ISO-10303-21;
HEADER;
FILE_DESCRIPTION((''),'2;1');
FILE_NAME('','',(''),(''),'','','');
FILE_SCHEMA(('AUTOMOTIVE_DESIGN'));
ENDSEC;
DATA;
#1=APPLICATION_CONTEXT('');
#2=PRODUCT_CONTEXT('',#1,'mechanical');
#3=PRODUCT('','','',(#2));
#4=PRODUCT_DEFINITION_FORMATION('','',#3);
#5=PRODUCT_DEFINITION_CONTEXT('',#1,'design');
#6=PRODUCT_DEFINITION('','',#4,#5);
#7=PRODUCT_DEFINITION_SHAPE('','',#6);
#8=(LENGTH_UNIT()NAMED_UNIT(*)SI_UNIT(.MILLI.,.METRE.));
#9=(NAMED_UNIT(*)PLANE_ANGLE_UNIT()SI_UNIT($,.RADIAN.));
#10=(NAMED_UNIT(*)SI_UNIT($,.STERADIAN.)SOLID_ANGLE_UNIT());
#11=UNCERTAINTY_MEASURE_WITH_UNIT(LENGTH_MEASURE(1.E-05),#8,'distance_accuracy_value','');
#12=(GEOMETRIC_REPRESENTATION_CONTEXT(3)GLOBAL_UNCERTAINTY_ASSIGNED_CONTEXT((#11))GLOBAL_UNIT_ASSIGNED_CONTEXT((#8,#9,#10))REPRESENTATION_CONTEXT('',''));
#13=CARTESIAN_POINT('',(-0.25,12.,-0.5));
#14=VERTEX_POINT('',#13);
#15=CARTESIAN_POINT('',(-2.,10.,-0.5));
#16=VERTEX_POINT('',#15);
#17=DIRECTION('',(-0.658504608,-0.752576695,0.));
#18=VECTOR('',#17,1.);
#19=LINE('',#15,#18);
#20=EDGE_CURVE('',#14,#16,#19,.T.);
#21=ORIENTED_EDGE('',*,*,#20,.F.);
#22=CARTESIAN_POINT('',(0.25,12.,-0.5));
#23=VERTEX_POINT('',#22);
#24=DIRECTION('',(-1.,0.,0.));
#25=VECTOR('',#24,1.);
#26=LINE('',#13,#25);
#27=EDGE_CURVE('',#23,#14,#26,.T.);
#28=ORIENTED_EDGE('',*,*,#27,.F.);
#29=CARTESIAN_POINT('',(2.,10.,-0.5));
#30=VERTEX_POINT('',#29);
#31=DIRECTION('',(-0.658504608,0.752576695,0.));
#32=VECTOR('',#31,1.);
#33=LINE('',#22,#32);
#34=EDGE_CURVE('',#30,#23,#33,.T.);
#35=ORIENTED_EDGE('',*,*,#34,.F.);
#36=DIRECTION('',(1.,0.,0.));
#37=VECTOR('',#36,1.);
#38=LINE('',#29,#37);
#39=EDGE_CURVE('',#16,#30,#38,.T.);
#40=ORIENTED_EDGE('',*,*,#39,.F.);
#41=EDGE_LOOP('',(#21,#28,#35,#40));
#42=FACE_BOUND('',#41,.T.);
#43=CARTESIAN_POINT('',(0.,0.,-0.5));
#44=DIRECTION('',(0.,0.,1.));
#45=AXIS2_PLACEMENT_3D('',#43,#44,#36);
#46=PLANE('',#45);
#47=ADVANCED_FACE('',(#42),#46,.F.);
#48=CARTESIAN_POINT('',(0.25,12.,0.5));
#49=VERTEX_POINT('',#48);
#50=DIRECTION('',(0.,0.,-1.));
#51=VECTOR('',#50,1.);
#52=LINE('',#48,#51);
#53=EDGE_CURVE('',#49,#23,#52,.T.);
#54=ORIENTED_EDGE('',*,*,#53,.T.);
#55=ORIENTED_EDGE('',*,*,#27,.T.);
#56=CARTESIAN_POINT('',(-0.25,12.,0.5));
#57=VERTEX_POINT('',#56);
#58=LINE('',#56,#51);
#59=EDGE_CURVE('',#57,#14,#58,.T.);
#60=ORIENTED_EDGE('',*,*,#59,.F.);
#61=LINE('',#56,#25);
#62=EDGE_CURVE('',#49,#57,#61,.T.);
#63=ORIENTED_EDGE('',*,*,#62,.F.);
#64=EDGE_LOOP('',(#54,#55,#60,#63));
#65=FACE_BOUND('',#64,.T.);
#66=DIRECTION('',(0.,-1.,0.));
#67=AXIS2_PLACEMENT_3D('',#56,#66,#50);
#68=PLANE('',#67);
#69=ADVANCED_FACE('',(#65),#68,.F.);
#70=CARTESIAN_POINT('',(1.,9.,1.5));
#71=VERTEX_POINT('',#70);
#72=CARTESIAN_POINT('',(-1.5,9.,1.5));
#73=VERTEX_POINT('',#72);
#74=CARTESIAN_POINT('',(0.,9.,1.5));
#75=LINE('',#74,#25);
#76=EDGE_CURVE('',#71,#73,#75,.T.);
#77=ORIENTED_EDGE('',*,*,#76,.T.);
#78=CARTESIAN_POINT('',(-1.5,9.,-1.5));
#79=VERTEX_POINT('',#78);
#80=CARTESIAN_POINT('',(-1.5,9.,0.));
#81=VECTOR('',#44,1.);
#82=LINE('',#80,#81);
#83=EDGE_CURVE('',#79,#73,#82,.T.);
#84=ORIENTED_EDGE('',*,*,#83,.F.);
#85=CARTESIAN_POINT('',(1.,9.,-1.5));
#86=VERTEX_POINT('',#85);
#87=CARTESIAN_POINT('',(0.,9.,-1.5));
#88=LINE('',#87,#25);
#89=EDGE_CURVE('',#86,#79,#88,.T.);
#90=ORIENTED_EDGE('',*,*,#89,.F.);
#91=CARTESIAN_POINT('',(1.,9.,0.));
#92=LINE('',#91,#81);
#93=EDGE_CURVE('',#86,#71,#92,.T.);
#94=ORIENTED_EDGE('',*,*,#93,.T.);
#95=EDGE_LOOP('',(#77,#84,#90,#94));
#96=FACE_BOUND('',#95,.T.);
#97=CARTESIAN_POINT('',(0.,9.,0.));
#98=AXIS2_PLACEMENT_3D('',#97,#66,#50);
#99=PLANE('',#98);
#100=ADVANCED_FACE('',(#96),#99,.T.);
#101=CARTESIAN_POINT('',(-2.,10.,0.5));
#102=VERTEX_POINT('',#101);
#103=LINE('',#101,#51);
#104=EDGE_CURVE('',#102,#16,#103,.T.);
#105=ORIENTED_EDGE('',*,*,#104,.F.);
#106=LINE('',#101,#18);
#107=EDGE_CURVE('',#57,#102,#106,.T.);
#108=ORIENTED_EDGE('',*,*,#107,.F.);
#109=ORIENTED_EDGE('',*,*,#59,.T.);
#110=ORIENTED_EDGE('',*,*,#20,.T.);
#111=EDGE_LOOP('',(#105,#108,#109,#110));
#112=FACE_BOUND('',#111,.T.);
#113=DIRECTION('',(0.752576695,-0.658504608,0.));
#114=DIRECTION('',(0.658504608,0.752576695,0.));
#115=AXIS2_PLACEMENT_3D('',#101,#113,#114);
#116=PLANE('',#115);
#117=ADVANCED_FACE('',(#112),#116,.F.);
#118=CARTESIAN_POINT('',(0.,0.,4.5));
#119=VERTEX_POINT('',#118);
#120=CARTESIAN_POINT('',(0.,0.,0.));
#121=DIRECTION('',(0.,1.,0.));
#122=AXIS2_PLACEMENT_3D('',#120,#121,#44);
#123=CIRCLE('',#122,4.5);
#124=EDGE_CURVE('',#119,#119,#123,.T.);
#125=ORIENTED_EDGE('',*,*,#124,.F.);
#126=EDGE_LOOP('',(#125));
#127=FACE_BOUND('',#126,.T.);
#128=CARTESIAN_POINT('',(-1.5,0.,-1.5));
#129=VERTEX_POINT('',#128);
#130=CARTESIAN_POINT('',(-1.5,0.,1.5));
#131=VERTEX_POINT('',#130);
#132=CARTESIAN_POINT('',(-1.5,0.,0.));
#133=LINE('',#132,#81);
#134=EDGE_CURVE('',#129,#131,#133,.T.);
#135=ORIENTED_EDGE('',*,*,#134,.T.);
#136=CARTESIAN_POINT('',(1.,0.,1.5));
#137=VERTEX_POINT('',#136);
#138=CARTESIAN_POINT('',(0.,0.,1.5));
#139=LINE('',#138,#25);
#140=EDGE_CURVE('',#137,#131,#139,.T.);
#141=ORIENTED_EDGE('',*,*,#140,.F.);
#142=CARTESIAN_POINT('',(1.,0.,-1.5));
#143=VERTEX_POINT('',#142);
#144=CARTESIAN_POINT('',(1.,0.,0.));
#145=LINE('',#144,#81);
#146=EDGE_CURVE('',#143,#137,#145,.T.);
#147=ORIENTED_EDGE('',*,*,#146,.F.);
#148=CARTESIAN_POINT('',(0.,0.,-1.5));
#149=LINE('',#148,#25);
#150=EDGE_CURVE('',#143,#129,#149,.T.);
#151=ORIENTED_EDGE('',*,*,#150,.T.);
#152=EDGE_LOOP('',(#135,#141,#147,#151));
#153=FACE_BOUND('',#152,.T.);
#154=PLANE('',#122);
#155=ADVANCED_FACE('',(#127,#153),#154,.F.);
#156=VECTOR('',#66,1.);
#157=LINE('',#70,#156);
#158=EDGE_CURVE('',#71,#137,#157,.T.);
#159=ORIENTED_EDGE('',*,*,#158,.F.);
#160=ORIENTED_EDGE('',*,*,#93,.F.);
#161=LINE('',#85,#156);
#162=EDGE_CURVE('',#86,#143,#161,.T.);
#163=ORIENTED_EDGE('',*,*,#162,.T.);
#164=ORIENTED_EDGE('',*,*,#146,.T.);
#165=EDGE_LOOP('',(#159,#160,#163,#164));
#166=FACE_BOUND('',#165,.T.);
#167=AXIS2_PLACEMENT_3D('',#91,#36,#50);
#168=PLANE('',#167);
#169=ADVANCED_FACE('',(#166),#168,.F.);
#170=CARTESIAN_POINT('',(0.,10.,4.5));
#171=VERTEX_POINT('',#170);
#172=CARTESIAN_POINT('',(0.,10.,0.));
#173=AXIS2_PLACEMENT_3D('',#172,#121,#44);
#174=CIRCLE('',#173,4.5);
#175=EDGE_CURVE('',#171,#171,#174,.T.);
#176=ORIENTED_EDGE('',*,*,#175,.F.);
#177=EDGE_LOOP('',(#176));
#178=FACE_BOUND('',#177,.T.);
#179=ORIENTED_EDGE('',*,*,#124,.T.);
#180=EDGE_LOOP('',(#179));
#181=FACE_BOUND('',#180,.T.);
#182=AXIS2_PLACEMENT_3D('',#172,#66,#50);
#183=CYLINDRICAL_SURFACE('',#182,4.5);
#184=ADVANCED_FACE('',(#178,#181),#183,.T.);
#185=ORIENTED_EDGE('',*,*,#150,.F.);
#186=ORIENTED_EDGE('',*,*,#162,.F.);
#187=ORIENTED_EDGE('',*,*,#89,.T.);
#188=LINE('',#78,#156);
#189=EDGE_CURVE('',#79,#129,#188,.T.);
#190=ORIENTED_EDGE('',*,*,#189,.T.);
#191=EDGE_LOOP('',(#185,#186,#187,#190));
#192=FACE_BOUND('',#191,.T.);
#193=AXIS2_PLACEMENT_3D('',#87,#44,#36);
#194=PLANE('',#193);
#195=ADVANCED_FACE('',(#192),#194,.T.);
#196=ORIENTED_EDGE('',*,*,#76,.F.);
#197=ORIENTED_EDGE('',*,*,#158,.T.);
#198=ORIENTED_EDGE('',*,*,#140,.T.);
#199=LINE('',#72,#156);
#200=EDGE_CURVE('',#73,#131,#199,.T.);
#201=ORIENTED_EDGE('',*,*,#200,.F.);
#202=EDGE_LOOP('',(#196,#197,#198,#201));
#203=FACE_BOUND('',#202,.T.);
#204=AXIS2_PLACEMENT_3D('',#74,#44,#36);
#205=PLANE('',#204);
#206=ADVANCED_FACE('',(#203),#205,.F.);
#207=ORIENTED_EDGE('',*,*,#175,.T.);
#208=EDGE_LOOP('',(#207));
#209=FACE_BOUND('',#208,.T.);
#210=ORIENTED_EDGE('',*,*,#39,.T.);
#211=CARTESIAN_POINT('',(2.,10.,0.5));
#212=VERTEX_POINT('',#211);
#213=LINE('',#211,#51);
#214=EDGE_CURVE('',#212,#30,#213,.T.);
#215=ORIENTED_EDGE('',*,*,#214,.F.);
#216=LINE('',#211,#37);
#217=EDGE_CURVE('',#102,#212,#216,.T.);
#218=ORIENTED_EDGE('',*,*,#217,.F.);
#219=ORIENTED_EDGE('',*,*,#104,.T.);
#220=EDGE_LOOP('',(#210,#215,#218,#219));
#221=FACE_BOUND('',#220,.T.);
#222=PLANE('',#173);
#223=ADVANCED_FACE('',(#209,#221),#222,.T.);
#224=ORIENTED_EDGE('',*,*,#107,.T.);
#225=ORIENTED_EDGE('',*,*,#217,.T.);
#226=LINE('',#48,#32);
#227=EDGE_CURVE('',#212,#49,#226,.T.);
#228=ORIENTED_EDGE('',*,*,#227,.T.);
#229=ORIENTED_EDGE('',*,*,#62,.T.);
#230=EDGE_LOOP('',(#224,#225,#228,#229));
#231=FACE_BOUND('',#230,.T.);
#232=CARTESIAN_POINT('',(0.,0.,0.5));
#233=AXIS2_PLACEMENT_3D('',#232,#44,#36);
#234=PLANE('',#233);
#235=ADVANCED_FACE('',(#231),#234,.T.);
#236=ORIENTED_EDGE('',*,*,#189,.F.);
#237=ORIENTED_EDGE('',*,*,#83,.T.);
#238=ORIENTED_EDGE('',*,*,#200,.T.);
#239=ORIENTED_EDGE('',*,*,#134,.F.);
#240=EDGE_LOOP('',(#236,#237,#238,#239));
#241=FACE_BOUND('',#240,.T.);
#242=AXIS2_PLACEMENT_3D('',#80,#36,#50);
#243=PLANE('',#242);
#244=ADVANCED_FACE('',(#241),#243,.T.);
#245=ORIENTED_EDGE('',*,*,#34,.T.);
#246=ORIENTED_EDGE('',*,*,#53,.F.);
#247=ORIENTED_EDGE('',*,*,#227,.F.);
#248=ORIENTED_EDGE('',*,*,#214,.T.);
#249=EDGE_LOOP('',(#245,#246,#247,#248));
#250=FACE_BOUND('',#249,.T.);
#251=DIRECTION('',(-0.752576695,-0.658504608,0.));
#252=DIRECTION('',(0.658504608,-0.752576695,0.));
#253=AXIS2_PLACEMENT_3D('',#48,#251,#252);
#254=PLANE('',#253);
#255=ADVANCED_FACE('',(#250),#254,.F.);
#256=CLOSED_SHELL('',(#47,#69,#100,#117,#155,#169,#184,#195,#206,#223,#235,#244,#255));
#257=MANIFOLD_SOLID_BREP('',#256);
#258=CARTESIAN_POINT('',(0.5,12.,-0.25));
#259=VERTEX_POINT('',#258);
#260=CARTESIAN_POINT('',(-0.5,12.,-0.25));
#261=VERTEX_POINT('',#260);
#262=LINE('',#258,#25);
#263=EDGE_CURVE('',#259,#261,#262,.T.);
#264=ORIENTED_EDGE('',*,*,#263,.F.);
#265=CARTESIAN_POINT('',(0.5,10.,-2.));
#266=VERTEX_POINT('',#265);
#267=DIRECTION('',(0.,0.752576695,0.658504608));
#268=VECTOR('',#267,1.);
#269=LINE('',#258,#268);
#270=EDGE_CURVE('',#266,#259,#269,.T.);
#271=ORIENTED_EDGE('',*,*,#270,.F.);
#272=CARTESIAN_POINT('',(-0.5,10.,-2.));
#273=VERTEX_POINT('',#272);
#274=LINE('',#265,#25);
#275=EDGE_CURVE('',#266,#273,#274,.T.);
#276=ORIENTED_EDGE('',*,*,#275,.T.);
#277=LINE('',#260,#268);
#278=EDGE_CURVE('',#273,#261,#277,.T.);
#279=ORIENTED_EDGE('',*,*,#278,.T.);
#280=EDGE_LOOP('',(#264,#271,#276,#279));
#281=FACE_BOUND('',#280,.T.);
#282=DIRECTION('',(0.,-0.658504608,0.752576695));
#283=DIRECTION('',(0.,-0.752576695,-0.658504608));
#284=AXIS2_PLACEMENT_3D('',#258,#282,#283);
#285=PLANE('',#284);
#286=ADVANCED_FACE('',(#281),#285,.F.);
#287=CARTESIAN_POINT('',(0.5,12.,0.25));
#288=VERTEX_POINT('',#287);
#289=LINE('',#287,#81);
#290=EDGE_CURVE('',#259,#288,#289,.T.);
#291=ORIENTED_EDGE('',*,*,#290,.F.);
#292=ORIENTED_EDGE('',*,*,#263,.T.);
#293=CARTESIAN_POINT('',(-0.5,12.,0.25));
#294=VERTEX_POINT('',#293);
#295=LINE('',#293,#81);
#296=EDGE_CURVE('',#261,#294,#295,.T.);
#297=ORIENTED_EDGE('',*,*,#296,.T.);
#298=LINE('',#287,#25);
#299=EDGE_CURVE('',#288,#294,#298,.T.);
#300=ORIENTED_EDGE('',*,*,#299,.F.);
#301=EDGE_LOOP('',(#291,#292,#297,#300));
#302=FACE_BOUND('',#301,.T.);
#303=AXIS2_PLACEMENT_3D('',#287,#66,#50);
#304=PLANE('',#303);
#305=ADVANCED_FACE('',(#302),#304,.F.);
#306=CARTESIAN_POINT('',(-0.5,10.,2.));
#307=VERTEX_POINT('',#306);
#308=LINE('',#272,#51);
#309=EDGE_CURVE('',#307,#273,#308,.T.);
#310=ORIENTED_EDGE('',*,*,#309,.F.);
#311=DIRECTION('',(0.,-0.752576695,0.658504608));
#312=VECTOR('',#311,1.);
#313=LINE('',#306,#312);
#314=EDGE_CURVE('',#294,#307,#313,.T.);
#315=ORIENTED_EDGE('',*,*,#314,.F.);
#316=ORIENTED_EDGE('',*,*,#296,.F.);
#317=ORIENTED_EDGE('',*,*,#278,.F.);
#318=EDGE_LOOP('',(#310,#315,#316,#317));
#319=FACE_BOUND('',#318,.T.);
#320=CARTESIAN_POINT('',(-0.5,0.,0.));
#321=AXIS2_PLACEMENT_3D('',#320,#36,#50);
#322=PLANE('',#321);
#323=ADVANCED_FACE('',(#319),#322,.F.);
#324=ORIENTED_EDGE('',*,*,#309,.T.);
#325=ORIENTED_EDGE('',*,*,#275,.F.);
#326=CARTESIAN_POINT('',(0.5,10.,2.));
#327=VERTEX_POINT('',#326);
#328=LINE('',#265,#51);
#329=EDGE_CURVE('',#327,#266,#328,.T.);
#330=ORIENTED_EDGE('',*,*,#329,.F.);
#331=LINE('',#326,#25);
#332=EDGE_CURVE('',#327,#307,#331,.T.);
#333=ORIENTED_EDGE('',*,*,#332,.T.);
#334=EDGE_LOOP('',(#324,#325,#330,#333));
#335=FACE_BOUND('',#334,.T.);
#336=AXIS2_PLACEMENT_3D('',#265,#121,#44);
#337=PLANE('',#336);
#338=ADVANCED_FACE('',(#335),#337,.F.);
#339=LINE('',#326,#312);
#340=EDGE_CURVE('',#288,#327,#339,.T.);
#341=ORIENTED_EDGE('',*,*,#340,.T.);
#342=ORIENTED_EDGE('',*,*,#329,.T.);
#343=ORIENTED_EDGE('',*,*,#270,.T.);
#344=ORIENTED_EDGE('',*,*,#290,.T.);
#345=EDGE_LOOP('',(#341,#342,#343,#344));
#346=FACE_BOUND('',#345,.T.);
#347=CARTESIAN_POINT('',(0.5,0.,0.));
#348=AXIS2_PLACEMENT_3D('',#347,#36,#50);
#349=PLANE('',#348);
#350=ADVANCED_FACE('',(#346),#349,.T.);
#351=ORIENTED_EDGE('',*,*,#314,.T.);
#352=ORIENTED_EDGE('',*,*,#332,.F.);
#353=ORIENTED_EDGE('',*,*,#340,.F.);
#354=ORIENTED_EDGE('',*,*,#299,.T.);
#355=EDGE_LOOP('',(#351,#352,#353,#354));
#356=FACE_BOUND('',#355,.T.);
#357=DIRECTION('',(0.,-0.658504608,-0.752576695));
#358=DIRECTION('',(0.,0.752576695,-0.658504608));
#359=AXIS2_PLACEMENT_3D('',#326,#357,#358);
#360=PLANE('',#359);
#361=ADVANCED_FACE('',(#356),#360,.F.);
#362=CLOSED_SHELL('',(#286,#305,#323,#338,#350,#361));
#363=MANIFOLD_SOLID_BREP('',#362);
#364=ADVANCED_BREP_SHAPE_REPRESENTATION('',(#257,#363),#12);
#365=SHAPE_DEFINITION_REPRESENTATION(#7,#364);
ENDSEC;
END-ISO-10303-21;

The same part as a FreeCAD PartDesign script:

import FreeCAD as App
import Part
import Sketcher
Q = App.Units.Quantity


def add_polygon(sketch, points):
    """Adds a closed chain of lines whose ends are joined by coincident constraints."""
    first, n = sketch.GeometryCount, len(points)
    for a, b in zip(points, points[1:] + points[:1]):
        sketch.addGeometry(Part.LineSegment(App.Vector(*a, 0), App.Vector(*b, 0)), False)
    for i in range(n):
        sketch.addConstraint(Sketcher.Constraint("Coincident", first + i, 2, first + (i + 1) % n, 1))

doc = App.newDocument("Part")
body = doc.addObject("PartDesign::Body", "Body")

sketch1 = body.newObject("Sketcher::SketchObject", "Sketch")
sketch1.AttachmentSupport = (doc.getObject("XZ_Plane"), [""])
sketch1.MapMode = "FlatFace"
sketch1.addGeometry(Part.Circle(App.Vector(0, 0, 0), App.Vector(0, 0, 1), 4.5), False)
sketch1.addConstraint(Sketcher.Constraint("Coincident", 0, 3, -1, 1))
sketch1.addConstraint(Sketcher.Constraint("Diameter", 0, Q("9 mm")))
pad1 = body.newObject("PartDesign::Pad", "Pad")
pad1.Profile = sketch1
pad1.Length = 10
pad1.Reversed = True

sketch2 = body.newObject("Sketcher::SketchObject", "Sketch001")
sketch2.AttachmentSupport = (doc.getObject("XZ_Plane"), [""])
sketch2.MapMode = "FlatFace"
add_polygon(sketch2, [(-1.5, -1.5), (-1.5, 1.5), (1, 1.5), (1, -1.5)])
sketch2.addConstraint(Sketcher.Constraint("Vertical", 0))
sketch2.addConstraint(Sketcher.Constraint("Horizontal", 1))
sketch2.addConstraint(Sketcher.Constraint("Vertical", 2))
sketch2.addConstraint(Sketcher.Constraint("Horizontal", 3))
sketch2.addConstraint(Sketcher.Constraint("DistanceY", 0, 1, 0, 2, Q("3 mm")))
sketch2.addConstraint(Sketcher.Constraint("DistanceX", 1, 1, 1, 2, Q("2.5 mm")))
sketch2.addConstraint(Sketcher.Constraint("DistanceX", -1, 1, 1, 2, Q("1 mm")))
sketch2.addConstraint(Sketcher.Constraint("DistanceY", -1, 1, 0, 2, Q("1.5 mm")))
pocket1 = body.newObject("PartDesign::Pocket", "Pocket")
pocket1.Profile = sketch2
pocket1.Length = 9

sketch3 = body.newObject("Sketcher::SketchObject", "Sketch002")
sketch3.AttachmentSupport = (doc.getObject("XY_Plane"), [""])
sketch3.MapMode = "FlatFace"
add_polygon(sketch3, [(-2, 10), (2, 10), (0.2, 12), (-0.2, 12)])
sketch3.addConstraint(Sketcher.Constraint("Horizontal", 0))
sketch3.addConstraint(Sketcher.Constraint("Horizontal", 2))
sketch3.addConstraint(Sketcher.Constraint("Equal", 1, 3))
sketch3.addConstraint(Sketcher.Constraint("DistanceX", 0, 1, 0, 2, Q("4 mm")))
sketch3.addConstraint(Sketcher.Constraint("DistanceX", 2, 2, 2, 1, Q("0.5 mm")))
sketch3.addConstraint(Sketcher.Constraint("DistanceX", -1, 1, 0, 2, Q("2 mm")))
sketch3.addConstraint(Sketcher.Constraint("DistanceY", -1, 1, 0, 2, Q("10 mm")))
sketch3.addConstraint(Sketcher.Constraint("DistanceY", -1, 1, 1, 2, Q("12 mm")))
pad2 = body.newObject("PartDesign::Pad", "Pad001")
pad2.Profile = sketch3
pad2.Length = 1
pad2.Midplane = True
body2 = doc.addObject("PartDesign::Body", "Body001")

sketch4 = body2.newObject("Sketcher::SketchObject", "Sketch003")
sketch4.AttachmentSupport = (doc.getObject("YZ_Plane001"), [""])
sketch4.MapMode = "FlatFace"
add_polygon(sketch4, [(10, 2), (10, -2), (12, -0.2), (12, 0.2)])
sketch4.addConstraint(Sketcher.Constraint("Vertical", 0))
sketch4.addConstraint(Sketcher.Constraint("Vertical", 2))
sketch4.addConstraint(Sketcher.Constraint("Equal", 1, 3))
sketch4.addConstraint(Sketcher.Constraint("DistanceY", 0, 2, 0, 1, Q("4 mm")))
sketch4.addConstraint(Sketcher.Constraint("DistanceY", 2, 1, 2, 2, Q("0.5 mm")))
sketch4.addConstraint(Sketcher.Constraint("DistanceX", -1, 1, 0, 2, Q("10 mm")))
sketch4.addConstraint(Sketcher.Constraint("DistanceY", 0, 2, -1, 1, Q("2 mm")))
sketch4.addConstraint(Sketcher.Constraint("DistanceX", -1, 1, 1, 2, Q("12 mm")))
pad3 = body2.newObject("PartDesign::Pad", "Pad002")
pad3.Profile = sketch4
pad3.Length = 1
pad3.Midplane = True

doc.recompute()
